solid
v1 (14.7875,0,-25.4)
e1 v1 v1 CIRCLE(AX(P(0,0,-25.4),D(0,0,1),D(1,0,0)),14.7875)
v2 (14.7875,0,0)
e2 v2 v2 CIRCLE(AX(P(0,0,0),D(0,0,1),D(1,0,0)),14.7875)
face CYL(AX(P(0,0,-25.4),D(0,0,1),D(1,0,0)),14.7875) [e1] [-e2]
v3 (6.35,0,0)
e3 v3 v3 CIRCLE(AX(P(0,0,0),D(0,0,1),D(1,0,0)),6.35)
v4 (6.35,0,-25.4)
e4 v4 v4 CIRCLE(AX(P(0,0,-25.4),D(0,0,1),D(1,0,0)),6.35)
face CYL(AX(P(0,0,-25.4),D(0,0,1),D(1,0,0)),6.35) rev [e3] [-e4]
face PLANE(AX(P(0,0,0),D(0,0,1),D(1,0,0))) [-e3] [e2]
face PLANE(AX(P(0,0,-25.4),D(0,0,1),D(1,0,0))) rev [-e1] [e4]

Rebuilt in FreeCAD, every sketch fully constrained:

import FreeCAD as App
import Part
import Sketcher
Q = App.Units.Quantity

doc = App.newDocument("Part")
body = doc.addObject("PartDesign::Body", "Body")

sketch1 = doc.addObject("Sketcher::SketchObject", "Sketch")
body.addObject(sketch1)
sketch1.AttachmentSupport = (doc.XY_Plane, [""])
sketch1.MapMode = "FlatFace"
sketch1.addGeometry([
    Part.Circle(App.Vector(0, 0, 0), App.Vector(0, 0, 1), 15),
    Part.Circle(App.Vector(0, 0, 0), App.Vector(0, 0, 1), 6),
], False)
sketch1.addConstraint([
    Sketcher.Constraint("Coincident", 0, 3, -1, 1),
    Sketcher.Constraint("Coincident", 1, 3, -1, 1),
    Sketcher.Constraint("Diameter", 1, Q("0.5 in")),
    Sketcher.Constraint("Diameter", 0, 29.575),
])
pad1 = doc.addObject("PartDesign::Pad", "Pad")
body.addObject(pad1)
pad1.Profile = sketch1
pad1.Length = Q("1 in")
pad1.Reversed = True

doc.recompute()
